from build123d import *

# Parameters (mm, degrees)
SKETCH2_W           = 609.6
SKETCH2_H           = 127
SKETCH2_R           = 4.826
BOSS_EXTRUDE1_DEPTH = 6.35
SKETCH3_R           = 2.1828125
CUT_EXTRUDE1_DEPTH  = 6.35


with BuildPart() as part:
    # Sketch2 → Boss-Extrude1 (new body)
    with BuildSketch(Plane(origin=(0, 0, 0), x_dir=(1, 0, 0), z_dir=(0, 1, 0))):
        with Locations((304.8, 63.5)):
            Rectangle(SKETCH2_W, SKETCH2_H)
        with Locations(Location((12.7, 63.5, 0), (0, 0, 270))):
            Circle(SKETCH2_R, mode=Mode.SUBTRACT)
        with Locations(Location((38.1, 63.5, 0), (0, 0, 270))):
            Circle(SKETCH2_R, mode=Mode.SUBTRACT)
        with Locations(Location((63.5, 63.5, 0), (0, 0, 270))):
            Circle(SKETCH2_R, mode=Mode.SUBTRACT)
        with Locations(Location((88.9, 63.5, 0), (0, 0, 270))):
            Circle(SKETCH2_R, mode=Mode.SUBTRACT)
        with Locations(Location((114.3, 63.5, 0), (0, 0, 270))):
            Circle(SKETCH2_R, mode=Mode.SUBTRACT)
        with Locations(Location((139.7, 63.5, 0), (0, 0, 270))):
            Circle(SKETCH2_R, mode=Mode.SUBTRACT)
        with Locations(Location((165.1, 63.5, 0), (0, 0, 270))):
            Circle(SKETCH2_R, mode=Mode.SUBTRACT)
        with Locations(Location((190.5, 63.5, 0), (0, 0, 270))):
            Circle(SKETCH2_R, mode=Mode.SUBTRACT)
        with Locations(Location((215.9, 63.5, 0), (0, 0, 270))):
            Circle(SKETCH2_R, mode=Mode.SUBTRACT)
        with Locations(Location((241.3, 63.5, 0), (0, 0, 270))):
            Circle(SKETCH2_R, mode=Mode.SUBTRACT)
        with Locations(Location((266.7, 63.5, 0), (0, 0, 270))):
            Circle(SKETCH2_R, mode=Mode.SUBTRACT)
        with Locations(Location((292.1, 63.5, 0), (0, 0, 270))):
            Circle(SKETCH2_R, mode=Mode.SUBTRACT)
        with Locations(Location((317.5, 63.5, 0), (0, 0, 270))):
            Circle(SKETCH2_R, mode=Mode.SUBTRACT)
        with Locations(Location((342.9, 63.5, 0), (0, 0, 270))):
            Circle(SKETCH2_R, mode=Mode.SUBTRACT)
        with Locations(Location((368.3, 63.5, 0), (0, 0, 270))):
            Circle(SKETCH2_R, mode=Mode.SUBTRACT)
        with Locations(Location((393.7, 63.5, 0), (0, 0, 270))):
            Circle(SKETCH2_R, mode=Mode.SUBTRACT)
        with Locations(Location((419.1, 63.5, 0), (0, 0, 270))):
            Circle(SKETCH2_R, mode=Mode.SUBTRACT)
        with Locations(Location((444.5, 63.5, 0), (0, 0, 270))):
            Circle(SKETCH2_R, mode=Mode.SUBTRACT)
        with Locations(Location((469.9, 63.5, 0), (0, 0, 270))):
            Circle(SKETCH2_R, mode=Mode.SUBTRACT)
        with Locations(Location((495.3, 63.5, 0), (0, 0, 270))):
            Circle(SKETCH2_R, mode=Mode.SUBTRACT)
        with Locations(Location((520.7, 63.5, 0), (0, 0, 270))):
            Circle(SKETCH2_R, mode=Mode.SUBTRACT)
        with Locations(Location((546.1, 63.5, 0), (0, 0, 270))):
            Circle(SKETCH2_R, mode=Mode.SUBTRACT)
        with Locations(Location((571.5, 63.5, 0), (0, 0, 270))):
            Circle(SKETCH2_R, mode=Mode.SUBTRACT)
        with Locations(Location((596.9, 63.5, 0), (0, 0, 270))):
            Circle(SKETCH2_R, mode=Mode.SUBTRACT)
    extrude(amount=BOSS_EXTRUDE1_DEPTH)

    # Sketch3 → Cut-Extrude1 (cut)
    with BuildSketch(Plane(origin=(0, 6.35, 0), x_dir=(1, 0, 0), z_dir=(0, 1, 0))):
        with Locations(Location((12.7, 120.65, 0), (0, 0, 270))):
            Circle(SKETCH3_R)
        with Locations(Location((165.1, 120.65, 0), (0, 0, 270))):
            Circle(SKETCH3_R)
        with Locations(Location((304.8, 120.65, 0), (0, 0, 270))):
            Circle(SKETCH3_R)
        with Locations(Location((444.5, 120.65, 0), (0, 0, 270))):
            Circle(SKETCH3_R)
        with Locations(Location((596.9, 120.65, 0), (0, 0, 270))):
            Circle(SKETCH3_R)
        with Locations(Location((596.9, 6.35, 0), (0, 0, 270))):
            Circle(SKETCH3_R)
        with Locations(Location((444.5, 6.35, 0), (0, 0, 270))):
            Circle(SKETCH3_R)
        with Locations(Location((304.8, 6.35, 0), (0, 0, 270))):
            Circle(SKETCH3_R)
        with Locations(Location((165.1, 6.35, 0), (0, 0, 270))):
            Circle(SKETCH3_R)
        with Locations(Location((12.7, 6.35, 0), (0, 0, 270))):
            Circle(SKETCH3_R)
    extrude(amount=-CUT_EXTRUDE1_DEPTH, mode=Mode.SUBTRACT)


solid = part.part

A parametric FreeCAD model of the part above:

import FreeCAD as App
import Part
import Sketcher
from FreeCAD import Vector
Q = App.Units.Quantity


def add_polygon(sketch, points):
    """Adds a closed chain of lines whose ends are joined by coincident constraints."""
    first, n = sketch.GeometryCount, len(points)
    for a, b in zip(points, points[1:] + points[:1]):
        sketch.addGeometry(Part.LineSegment(App.Vector(*a, 0), App.Vector(*b, 0)), False)
    for i in range(n):
        sketch.addConstraint(Sketcher.Constraint("Coincident", first + i, 2, first + (i + 1) % n, 1))

doc = App.newDocument("Part")
body = doc.addObject("PartDesign::Body", "Body")

# Sketch on XZ plane
sketch1 = doc.addObject("Sketcher::SketchObject", "Sketch")
body.addObject(sketch1)
sketch1.AttachmentSupport = (doc.XZ_Plane, [""])
sketch1.MapMode = "FlatFace"
add_polygon(sketch1, [(0, -127), (0, 0), (609.6, 0), (609.6, -127)])  # lines 0-3
sketch1.addGeometry(Part.Circle(Vector(12.7, -63.5, 0), Vector(0, 0, 1), 4.8), False)  # 4
sketch1.addGeometry(Part.Circle(Vector(38.1, -63.5, 0), Vector(0, 0, 1), 4.8), False)  # 5
sketch1.addGeometry(Part.Circle(Vector(63.5, -63.5, 0), Vector(0, 0, 1), 4.8), False)  # 6
sketch1.addGeometry(Part.Circle(Vector(88.9, -63.5, 0), Vector(0, 0, 1), 4.8), False)  # 7
sketch1.addGeometry(Part.Circle(Vector(114.3, -63.5, 0), Vector(0, 0, 1), 4.8), False)  # 8
sketch1.addGeometry(Part.Circle(Vector(139.7, -63.5, 0), Vector(0, 0, 1), 4.8), False)  # 9
sketch1.addGeometry(Part.Circle(Vector(165.1, -63.5, 0), Vector(0, 0, 1), 4.8), False)  # 10
sketch1.addGeometry(Part.Circle(Vector(190.5, -63.5, 0), Vector(0, 0, 1), 4.8), False)  # 11
sketch1.addGeometry(Part.Circle(Vector(215.9, -63.5, 0), Vector(0, 0, 1), 4.8), False)  # 12
sketch1.addGeometry(Part.Circle(Vector(241.3, -63.5, 0), Vector(0, 0, 1), 4.8), False)  # 13
sketch1.addGeometry(Part.Circle(Vector(266.7, -63.5, 0), Vector(0, 0, 1), 4.8), False)  # 14
sketch1.addGeometry(Part.Circle(Vector(292.1, -63.5, 0), Vector(0, 0, 1), 4.8), False)  # 15
sketch1.addGeometry(Part.Circle(Vector(317.5, -63.5, 0), Vector(0, 0, 1), 4.8), False)  # 16
sketch1.addGeometry(Part.Circle(Vector(342.9, -63.5, 0), Vector(0, 0, 1), 4.8), False)  # 17
sketch1.addGeometry(Part.Circle(Vector(368.3, -63.5, 0), Vector(0, 0, 1), 4.8), False)  # 18
sketch1.addGeometry(Part.Circle(Vector(393.7, -63.5, 0), Vector(0, 0, 1), 4.8), False)  # 19
sketch1.addGeometry(Part.Circle(Vector(419.1, -63.5, 0), Vector(0, 0, 1), 4.8), False)  # 20
sketch1.addGeometry(Part.Circle(Vector(444.5, -63.5, 0), Vector(0, 0, 1), 4.8), False)  # 21
sketch1.addGeometry(Part.Circle(Vector(469.9, -63.5, 0), Vector(0, 0, 1), 4.8), False)  # 22
sketch1.addGeometry(Part.Circle(Vector(495.3, -63.5, 0), Vector(0, 0, 1), 4.8), False)  # 23
sketch1.addGeometry(Part.Circle(Vector(520.7, -63.5, 0), Vector(0, 0, 1), 4.8), False)  # 24
sketch1.addGeometry(Part.Circle(Vector(546.1, -63.5, 0), Vector(0, 0, 1), 4.8), False)  # 25
sketch1.addGeometry(Part.Circle(Vector(571.5, -63.5, 0), Vector(0, 0, 1), 4.8), False)  # 26
sketch1.addGeometry(Part.Circle(Vector(596.9, -63.5, 0), Vector(0, 0, 1), 4.8), False)  # 27
sketch1.addConstraint(Sketcher.Constraint("Vertical", 0))
sketch1.addConstraint(Sketcher.Constraint("Horizontal", 1))
sketch1.addConstraint(Sketcher.Constraint("Vertical", 2))
sketch1.addConstraint(Sketcher.Constraint("Horizontal", 3))
sketch1.addConstraint(Sketcher.Constraint("Coincident", 0, 2, -1, 1))
sketch1.addConstraint(Sketcher.Constraint("Equal", 4, 5))
sketch1.addConstraint(Sketcher.Constraint("Equal", 5, 6))
sketch1.addConstraint(Sketcher.Constraint("Equal", 6, 7))
sketch1.addConstraint(Sketcher.Constraint("Equal", 7, 8))
sketch1.addConstraint(Sketcher.Constraint("Equal", 8, 9))
sketch1.addConstraint(Sketcher.Constraint("Equal", 9, 10))
sketch1.addConstraint(Sketcher.Constraint("Equal", 10, 11))
sketch1.addConstraint(Sketcher.Constraint("Equal", 11, 12))
sketch1.addConstraint(Sketcher.Constraint("Equal", 12, 13))
sketch1.addConstraint(Sketcher.Constraint("Equal", 13, 14))
sketch1.addConstraint(Sketcher.Constraint("Equal", 14, 15))
sketch1.addConstraint(Sketcher.Constraint("Equal", 15, 16))
sketch1.addConstraint(Sketcher.Constraint("Equal", 16, 17))
sketch1.addConstraint(Sketcher.Constraint("Equal", 17, 18))
sketch1.addConstraint(Sketcher.Constraint("Equal", 18, 19))
sketch1.addConstraint(Sketcher.Constraint("Equal", 19, 20))
sketch1.addConstraint(Sketcher.Constraint("Equal", 20, 21))
sketch1.addConstraint(Sketcher.Constraint("Equal", 21, 22))
sketch1.addConstraint(Sketcher.Constraint("Equal", 22, 23))
sketch1.addConstraint(Sketcher.Constraint("Equal", 23, 24))
sketch1.addConstraint(Sketcher.Constraint("Equal", 24, 25))
sketch1.addConstraint(Sketcher.Constraint("Equal", 25, 26))
sketch1.addConstraint(Sketcher.Constraint("Equal", 26, 27))
sketch1.addConstraint(Sketcher.Constraint("Horizontal", 4, 3, 5, 3))
sketch1.addConstraint(Sketcher.Constraint("Horizontal", 5, 3, 6, 3))
sketch1.addConstraint(Sketcher.Constraint("Horizontal", 6, 3, 7, 3))
sketch1.addConstraint(Sketcher.Constraint("Horizontal", 7, 3, 8, 3))
sketch1.addConstraint(Sketcher.Constraint("Horizontal", 8, 3, 9, 3))
sketch1.addConstraint(Sketcher.Constraint("Horizontal", 9, 3, 10, 3))
sketch1.addConstraint(Sketcher.Constraint("Horizontal", 10, 3, 11, 3))
sketch1.addConstraint(Sketcher.Constraint("Horizontal", 11, 3, 12, 3))
sketch1.addConstraint(Sketcher.Constraint("Horizontal", 12, 3, 13, 3))
sketch1.addConstraint(Sketcher.Constraint("Horizontal", 13, 3, 14, 3))
sketch1.addConstraint(Sketcher.Constraint("Horizontal", 14, 3, 15, 3))
sketch1.addConstraint(Sketcher.Constraint("Horizontal", 15, 3, 16, 3))
sketch1.addConstraint(Sketcher.Constraint("Horizontal", 16, 3, 17, 3))
sketch1.addConstraint(Sketcher.Constraint("Horizontal", 17, 3, 18, 3))
sketch1.addConstraint(Sketcher.Constraint("Horizontal", 18, 3, 19, 3))
sketch1.addConstraint(Sketcher.Constraint("Horizontal", 19, 3, 20, 3))
sketch1.addConstraint(Sketcher.Constraint("Horizontal", 20, 3, 21, 3))
sketch1.addConstraint(Sketcher.Constraint("Horizontal", 21, 3, 22, 3))
sketch1.addConstraint(Sketcher.Constraint("Horizontal", 22, 3, 23, 3))
sketch1.addConstraint(Sketcher.Constraint("Horizontal", 23, 3, 24, 3))
sketch1.addConstraint(Sketcher.Constraint("Horizontal", 24, 3, 25, 3))
sketch1.addConstraint(Sketcher.Constraint("Horizontal", 25, 3, 26, 3))
sketch1.addConstraint(Sketcher.Constraint("Horizontal", 26, 3, 27, 3))
sketch1.addConstraint(Sketcher.Constraint("Diameter", 4, Q("0.38 in")))
sketch1.addConstraint(Sketcher.Constraint("DistanceX", 1, 1, 1, 2, Q("24 in")))
sketch1.addConstraint(Sketcher.Constraint("DistanceY", 0, 1, 0, 2, Q("5 in")))
sketch1.addConstraint(Sketcher.Constraint("DistanceX", 4, 3, 5, 3, Q("1 in")))
sketch1.addConstraint(Sketcher.Constraint("DistanceX", 5, 3, 6, 3, Q("1 in")))
sketch1.addConstraint(Sketcher.Constraint("DistanceX", 6, 3, 7, 3, Q("1 in")))
sketch1.addConstraint(Sketcher.Constraint("DistanceX", 7, 3, 8, 3, Q("1 in")))
sketch1.addConstraint(Sketcher.Constraint("DistanceX", 8, 3, 9, 3, Q("1 in")))
sketch1.addConstraint(Sketcher.Constraint("DistanceX", 9, 3, 10, 3, Q("1 in")))
sketch1.addConstraint(Sketcher.Constraint("DistanceX", 10, 3, 11, 3, Q("1 in")))
sketch1.addConstraint(Sketcher.Constraint("DistanceX", 11, 3, 12, 3, Q("1 in")))
sketch1.addConstraint(Sketcher.Constraint("DistanceX", 12, 3, 13, 3, Q("1 in")))
sketch1.addConstraint(Sketcher.Constraint("DistanceX", 13, 3, 14, 3, Q("1 in")))
sketch1.addConstraint(Sketcher.Constraint("DistanceX", 14, 3, 15, 3, Q("1 in")))
sketch1.addConstraint(Sketcher.Constraint("DistanceX", 15, 3, 16, 3, Q("1 in")))
sketch1.addConstraint(Sketcher.Constraint("DistanceX", 16, 3, 17, 3, Q("1 in")))
sketch1.addConstraint(Sketcher.Constraint("DistanceX", 17, 3, 18, 3, Q("1 in")))
sketch1.addConstraint(Sketcher.Constraint("DistanceX", 18, 3, 19, 3, Q("1 in")))
sketch1.addConstraint(Sketcher.Constraint("DistanceX", 19, 3, 20, 3, Q("1 in")))
sketch1.addConstraint(Sketcher.Constraint("DistanceX", 20, 3, 21, 3, Q("1 in")))
sketch1.addConstraint(Sketcher.Constraint("DistanceX", 21, 3, 22, 3, Q("1 in")))
sketch1.addConstraint(Sketcher.Constraint("DistanceX", 22, 3, 23, 3, Q("1 in")))
sketch1.addConstraint(Sketcher.Constraint("DistanceX", 23, 3, 24, 3, Q("1 in")))
sketch1.addConstraint(Sketcher.Constraint("DistanceX", 24, 3, 25, 3, Q("1 in")))
sketch1.addConstraint(Sketcher.Constraint("DistanceX", 25, 3, 26, 3, Q("1 in")))
sketch1.addConstraint(Sketcher.Constraint("DistanceX", 26, 3, 27, 3, Q("1 in")))
sketch1.addConstraint(Sketcher.Constraint("DistanceX", -1, 1, 4, 3, Q("0.5 in")))
sketch1.addConstraint(Sketcher.Constraint("DistanceY", 4, 3, -1, 1, Q("2.5 in")))
pad1 = doc.addObject("PartDesign::Pad", "Pad")
body.addObject(pad1)
pad1.Profile = sketch1
pad1.Length = Q("0.25 in")
pad1.Reversed = True

# Sketch on XZ plane
sketch2 = doc.addObject("Sketcher::SketchObject", "Sketch001")
body.addObject(sketch2)
sketch2.AttachmentSupport = (doc.XZ_Plane, [""])
sketch2.MapMode = "FlatFace"
sketch2.AttachmentOffset = App.Placement(Vector(0, 0, -0.25 * 25.4), App.Rotation())
sketch2.addGeometry(Part.Circle(Vector(12.7, -120.7, 0), Vector(0, 0, 1), 2.2), False)
sketch2.addGeometry(Part.Circle(Vector(165.1, -120.7, 0), Vector(0, 0, 1), 2.2), False)
sketch2.addGeometry(Part.Circle(Vector(304.8, -120.7, 0), Vector(0, 0, 1), 2.2), False)
sketch2.addGeometry(Part.Circle(Vector(444.5, -120.7, 0), Vector(0, 0, 1), 2.2), False)
sketch2.addGeometry(Part.Circle(Vector(596.9, -120.7, 0), Vector(0, 0, 1), 2.2), False)
sketch2.addGeometry(Part.Circle(Vector(596.9, -6.3, 0), Vector(0, 0, 1), 2.2), False)
sketch2.addGeometry(Part.Circle(Vector(444.5, -6.3, 0), Vector(0, 0, 1), 2.2), False)
sketch2.addGeometry(Part.Circle(Vector(304.8, -6.3, 0), Vector(0, 0, 1), 2.2), False)
sketch2.addGeometry(Part.Circle(Vector(165.1, -6.3, 0), Vector(0, 0, 1), 2.2), False)
sketch2.addGeometry(Part.Circle(Vector(12.7, -6.3, 0), Vector(0, 0, 1), 2.2), False)
sketch2.addConstraint(Sketcher.Constraint("Equal", 0, 1))
sketch2.addConstraint(Sketcher.Constraint("Equal", 1, 2))
sketch2.addConstraint(Sketcher.Constraint("Equal", 2, 3))
sketch2.addConstraint(Sketcher.Constraint("Equal", 3, 4))
sketch2.addConstraint(Sketcher.Constraint("Equal", 4, 5))
sketch2.addConstraint(Sketcher.Constraint("Equal", 5, 6))
sketch2.addConstraint(Sketcher.Constraint("Equal", 6, 7))
sketch2.addConstraint(Sketcher.Constraint("Equal", 7, 8))
sketch2.addConstraint(Sketcher.Constraint("Equal", 8, 9))
sketch2.addConstraint(Sketcher.Constraint("Horizontal", 0, 3, 1, 3))
sketch2.addConstraint(Sketcher.Constraint("Horizontal", 1, 3, 2, 3))
sketch2.addConstraint(Sketcher.Constraint("Horizontal", 2, 3, 3, 3))
sketch2.addConstraint(Sketcher.Constraint("Horizontal", 3, 3, 4, 3))
sketch2.addConstraint(Sketcher.Constraint("Horizontal", 5, 3, 6, 3))
sketch2.addConstraint(Sketcher.Constraint("Horizontal", 6, 3, 7, 3))
sketch2.addConstraint(Sketcher.Constraint("Horizontal", 7, 3, 8, 3))
sketch2.addConstraint(Sketcher.Constraint("Horizontal", 8, 3, 9, 3))
sketch2.addConstraint(Sketcher.Constraint("Vertical", 4, 3, 5, 3))
sketch2.addConstraint(Sketcher.Constraint("Vertical", 3, 3, 6, 3))
sketch2.addConstraint(Sketcher.Constraint("Vertical", 2, 3, 7, 3))
sketch2.addConstraint(Sketcher.Constraint("Vertical", 1, 3, 8, 3))
sketch2.addConstraint(Sketcher.Constraint("Vertical", 0, 3, 9, 3))
sketch2.addConstraint(Sketcher.Constraint("Diameter", 0, Q("0.171875 in")))
sketch2.addConstraint(Sketcher.Constraint("DistanceX", -1, 1, 2, 3, Q("12 in")))
sketch2.addConstraint(Sketcher.Constraint("DistanceX", 0, 3, 1, 3, Q("6 in")))
sketch2.addConstraint(Sketcher.Constraint("DistanceX", 1, 3, 3, 3, Q("11 in")))
sketch2.addConstraint(Sketcher.Constraint("DistanceX", 3, 3, 4, 3, Q("6 in")))
sketch2.addConstraint(Sketcher.Constraint("DistanceX", -1, 1, 0, 3, Q("0.5 in")))
sketch2.addConstraint(Sketcher.Constraint("DistanceY", 4, 3, 5, 3, Q("4.5 in")))
sketch2.addConstraint(Sketcher.Constraint("DistanceY", 0, 3, -1, 1, Q("4.75 in")))
pocket1 = doc.addObject("PartDesign::Pocket", "Pocket")
body.addObject(pocket1)
pocket1.Profile = sketch2
pocket1.Length = Q("0.25 in")
pocket1.Reversed = True

doc.recompute()
